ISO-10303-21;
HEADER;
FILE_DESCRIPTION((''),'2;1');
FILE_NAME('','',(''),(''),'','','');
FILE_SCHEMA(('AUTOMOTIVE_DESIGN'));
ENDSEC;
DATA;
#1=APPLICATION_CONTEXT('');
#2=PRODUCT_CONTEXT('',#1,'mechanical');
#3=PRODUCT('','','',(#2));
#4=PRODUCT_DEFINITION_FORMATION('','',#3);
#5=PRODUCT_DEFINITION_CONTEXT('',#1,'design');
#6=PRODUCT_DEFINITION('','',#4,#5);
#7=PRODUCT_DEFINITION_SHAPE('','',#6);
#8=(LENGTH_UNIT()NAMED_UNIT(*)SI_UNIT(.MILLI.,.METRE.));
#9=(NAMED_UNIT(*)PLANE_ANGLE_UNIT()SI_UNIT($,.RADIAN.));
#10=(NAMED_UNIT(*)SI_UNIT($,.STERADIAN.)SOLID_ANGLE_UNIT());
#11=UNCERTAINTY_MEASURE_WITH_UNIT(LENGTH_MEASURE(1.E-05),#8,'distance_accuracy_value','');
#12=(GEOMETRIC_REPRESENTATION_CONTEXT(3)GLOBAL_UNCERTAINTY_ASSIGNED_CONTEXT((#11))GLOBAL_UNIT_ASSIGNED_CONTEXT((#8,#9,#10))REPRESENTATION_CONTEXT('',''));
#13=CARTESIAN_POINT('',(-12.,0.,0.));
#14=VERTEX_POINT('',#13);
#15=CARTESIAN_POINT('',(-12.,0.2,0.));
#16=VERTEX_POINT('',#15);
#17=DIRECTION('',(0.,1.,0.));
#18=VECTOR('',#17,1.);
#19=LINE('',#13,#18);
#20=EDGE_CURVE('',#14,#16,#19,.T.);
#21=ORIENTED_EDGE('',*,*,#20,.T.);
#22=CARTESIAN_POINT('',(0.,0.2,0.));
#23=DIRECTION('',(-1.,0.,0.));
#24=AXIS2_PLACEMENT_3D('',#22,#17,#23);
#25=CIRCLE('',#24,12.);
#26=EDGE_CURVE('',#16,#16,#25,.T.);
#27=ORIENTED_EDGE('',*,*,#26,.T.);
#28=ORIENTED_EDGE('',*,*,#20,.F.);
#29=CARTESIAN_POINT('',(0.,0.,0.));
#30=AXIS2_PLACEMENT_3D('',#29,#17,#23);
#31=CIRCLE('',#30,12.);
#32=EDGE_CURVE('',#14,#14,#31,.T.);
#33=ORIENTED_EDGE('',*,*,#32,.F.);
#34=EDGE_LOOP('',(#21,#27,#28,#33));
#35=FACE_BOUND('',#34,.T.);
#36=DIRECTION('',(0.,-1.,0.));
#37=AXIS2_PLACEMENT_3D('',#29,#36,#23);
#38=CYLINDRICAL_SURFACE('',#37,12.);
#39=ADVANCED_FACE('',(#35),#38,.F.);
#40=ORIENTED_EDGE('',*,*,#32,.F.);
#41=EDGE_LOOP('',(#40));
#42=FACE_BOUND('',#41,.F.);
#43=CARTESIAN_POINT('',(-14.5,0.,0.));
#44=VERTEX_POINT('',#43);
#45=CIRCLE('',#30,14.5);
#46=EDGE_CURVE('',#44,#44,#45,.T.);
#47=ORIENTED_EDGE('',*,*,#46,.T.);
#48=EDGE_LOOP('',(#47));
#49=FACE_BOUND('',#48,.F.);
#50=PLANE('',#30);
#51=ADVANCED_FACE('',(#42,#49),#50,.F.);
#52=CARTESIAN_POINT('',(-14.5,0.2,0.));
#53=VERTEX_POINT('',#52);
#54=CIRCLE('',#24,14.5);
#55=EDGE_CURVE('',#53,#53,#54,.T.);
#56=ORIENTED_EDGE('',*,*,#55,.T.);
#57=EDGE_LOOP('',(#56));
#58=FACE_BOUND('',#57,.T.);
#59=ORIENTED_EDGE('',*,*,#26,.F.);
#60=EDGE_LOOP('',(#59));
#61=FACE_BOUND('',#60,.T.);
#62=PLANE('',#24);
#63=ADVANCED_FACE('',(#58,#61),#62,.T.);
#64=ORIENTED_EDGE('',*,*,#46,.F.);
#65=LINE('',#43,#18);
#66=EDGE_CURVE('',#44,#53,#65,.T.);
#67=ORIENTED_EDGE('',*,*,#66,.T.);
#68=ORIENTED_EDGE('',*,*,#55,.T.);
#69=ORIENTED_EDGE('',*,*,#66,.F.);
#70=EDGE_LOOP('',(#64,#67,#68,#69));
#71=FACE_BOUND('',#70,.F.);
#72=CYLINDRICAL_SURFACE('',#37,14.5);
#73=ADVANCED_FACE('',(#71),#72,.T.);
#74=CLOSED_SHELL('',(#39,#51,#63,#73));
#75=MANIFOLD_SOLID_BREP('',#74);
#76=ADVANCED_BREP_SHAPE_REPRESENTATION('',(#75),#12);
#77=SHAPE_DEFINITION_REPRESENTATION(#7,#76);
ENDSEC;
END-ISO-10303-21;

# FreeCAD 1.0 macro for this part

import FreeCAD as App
import Part
import Sketcher

V = App.Vector

doc = App.newDocument("Part")
params = doc.addObject("Spreadsheet::Sheet", "Params")
for row, (alias, value) in enumerate([
    ("sketch1_diameter", "29 mm"),
    ("sketch1_diameter2", "24 mm"),
    ("pad1_length", "0.2 mm"),
], start=1):
    params.set(f"A{row}", alias)
    params.set(f"B{row}", "=" + value)
    params.setAlias(f"B{row}", alias)

body = doc.addObject("PartDesign::Body", "Body")

sketch1 = body.newObject("Sketcher::SketchObject", "Sketch")
sketch1.AttachmentSupport = (doc.getObject("XZ_Plane"), [""])
sketch1.MapMode = "FlatFace"
sketch1.addGeometry([
    Part.Circle(V(0, 0, 0), V(0, 0, 1), 14),
    Part.Circle(V(0, 0, 0), V(0, 0, 1), 12),
], False)
sketch1.addConstraint([
    Sketcher.Constraint("Coincident", 0, 3, -1, 1),
    Sketcher.Constraint("Coincident", 1, 3, -1, 1),
    Sketcher.Constraint("Diameter", 0, 29.0),
    Sketcher.Constraint("Diameter", 1, 24.0),
])
sketch1.setExpression("Constraints[2]", "Params.sketch1_diameter")
sketch1.setExpression("Constraints[3]", "Params.sketch1_diameter2")
pad1 = body.newObject("PartDesign::Pad", "Pad")
pad1.Profile = sketch1
pad1.setExpression("Length", "Params.pad1_length")
pad1.Reversed = True

doc.recompute()
